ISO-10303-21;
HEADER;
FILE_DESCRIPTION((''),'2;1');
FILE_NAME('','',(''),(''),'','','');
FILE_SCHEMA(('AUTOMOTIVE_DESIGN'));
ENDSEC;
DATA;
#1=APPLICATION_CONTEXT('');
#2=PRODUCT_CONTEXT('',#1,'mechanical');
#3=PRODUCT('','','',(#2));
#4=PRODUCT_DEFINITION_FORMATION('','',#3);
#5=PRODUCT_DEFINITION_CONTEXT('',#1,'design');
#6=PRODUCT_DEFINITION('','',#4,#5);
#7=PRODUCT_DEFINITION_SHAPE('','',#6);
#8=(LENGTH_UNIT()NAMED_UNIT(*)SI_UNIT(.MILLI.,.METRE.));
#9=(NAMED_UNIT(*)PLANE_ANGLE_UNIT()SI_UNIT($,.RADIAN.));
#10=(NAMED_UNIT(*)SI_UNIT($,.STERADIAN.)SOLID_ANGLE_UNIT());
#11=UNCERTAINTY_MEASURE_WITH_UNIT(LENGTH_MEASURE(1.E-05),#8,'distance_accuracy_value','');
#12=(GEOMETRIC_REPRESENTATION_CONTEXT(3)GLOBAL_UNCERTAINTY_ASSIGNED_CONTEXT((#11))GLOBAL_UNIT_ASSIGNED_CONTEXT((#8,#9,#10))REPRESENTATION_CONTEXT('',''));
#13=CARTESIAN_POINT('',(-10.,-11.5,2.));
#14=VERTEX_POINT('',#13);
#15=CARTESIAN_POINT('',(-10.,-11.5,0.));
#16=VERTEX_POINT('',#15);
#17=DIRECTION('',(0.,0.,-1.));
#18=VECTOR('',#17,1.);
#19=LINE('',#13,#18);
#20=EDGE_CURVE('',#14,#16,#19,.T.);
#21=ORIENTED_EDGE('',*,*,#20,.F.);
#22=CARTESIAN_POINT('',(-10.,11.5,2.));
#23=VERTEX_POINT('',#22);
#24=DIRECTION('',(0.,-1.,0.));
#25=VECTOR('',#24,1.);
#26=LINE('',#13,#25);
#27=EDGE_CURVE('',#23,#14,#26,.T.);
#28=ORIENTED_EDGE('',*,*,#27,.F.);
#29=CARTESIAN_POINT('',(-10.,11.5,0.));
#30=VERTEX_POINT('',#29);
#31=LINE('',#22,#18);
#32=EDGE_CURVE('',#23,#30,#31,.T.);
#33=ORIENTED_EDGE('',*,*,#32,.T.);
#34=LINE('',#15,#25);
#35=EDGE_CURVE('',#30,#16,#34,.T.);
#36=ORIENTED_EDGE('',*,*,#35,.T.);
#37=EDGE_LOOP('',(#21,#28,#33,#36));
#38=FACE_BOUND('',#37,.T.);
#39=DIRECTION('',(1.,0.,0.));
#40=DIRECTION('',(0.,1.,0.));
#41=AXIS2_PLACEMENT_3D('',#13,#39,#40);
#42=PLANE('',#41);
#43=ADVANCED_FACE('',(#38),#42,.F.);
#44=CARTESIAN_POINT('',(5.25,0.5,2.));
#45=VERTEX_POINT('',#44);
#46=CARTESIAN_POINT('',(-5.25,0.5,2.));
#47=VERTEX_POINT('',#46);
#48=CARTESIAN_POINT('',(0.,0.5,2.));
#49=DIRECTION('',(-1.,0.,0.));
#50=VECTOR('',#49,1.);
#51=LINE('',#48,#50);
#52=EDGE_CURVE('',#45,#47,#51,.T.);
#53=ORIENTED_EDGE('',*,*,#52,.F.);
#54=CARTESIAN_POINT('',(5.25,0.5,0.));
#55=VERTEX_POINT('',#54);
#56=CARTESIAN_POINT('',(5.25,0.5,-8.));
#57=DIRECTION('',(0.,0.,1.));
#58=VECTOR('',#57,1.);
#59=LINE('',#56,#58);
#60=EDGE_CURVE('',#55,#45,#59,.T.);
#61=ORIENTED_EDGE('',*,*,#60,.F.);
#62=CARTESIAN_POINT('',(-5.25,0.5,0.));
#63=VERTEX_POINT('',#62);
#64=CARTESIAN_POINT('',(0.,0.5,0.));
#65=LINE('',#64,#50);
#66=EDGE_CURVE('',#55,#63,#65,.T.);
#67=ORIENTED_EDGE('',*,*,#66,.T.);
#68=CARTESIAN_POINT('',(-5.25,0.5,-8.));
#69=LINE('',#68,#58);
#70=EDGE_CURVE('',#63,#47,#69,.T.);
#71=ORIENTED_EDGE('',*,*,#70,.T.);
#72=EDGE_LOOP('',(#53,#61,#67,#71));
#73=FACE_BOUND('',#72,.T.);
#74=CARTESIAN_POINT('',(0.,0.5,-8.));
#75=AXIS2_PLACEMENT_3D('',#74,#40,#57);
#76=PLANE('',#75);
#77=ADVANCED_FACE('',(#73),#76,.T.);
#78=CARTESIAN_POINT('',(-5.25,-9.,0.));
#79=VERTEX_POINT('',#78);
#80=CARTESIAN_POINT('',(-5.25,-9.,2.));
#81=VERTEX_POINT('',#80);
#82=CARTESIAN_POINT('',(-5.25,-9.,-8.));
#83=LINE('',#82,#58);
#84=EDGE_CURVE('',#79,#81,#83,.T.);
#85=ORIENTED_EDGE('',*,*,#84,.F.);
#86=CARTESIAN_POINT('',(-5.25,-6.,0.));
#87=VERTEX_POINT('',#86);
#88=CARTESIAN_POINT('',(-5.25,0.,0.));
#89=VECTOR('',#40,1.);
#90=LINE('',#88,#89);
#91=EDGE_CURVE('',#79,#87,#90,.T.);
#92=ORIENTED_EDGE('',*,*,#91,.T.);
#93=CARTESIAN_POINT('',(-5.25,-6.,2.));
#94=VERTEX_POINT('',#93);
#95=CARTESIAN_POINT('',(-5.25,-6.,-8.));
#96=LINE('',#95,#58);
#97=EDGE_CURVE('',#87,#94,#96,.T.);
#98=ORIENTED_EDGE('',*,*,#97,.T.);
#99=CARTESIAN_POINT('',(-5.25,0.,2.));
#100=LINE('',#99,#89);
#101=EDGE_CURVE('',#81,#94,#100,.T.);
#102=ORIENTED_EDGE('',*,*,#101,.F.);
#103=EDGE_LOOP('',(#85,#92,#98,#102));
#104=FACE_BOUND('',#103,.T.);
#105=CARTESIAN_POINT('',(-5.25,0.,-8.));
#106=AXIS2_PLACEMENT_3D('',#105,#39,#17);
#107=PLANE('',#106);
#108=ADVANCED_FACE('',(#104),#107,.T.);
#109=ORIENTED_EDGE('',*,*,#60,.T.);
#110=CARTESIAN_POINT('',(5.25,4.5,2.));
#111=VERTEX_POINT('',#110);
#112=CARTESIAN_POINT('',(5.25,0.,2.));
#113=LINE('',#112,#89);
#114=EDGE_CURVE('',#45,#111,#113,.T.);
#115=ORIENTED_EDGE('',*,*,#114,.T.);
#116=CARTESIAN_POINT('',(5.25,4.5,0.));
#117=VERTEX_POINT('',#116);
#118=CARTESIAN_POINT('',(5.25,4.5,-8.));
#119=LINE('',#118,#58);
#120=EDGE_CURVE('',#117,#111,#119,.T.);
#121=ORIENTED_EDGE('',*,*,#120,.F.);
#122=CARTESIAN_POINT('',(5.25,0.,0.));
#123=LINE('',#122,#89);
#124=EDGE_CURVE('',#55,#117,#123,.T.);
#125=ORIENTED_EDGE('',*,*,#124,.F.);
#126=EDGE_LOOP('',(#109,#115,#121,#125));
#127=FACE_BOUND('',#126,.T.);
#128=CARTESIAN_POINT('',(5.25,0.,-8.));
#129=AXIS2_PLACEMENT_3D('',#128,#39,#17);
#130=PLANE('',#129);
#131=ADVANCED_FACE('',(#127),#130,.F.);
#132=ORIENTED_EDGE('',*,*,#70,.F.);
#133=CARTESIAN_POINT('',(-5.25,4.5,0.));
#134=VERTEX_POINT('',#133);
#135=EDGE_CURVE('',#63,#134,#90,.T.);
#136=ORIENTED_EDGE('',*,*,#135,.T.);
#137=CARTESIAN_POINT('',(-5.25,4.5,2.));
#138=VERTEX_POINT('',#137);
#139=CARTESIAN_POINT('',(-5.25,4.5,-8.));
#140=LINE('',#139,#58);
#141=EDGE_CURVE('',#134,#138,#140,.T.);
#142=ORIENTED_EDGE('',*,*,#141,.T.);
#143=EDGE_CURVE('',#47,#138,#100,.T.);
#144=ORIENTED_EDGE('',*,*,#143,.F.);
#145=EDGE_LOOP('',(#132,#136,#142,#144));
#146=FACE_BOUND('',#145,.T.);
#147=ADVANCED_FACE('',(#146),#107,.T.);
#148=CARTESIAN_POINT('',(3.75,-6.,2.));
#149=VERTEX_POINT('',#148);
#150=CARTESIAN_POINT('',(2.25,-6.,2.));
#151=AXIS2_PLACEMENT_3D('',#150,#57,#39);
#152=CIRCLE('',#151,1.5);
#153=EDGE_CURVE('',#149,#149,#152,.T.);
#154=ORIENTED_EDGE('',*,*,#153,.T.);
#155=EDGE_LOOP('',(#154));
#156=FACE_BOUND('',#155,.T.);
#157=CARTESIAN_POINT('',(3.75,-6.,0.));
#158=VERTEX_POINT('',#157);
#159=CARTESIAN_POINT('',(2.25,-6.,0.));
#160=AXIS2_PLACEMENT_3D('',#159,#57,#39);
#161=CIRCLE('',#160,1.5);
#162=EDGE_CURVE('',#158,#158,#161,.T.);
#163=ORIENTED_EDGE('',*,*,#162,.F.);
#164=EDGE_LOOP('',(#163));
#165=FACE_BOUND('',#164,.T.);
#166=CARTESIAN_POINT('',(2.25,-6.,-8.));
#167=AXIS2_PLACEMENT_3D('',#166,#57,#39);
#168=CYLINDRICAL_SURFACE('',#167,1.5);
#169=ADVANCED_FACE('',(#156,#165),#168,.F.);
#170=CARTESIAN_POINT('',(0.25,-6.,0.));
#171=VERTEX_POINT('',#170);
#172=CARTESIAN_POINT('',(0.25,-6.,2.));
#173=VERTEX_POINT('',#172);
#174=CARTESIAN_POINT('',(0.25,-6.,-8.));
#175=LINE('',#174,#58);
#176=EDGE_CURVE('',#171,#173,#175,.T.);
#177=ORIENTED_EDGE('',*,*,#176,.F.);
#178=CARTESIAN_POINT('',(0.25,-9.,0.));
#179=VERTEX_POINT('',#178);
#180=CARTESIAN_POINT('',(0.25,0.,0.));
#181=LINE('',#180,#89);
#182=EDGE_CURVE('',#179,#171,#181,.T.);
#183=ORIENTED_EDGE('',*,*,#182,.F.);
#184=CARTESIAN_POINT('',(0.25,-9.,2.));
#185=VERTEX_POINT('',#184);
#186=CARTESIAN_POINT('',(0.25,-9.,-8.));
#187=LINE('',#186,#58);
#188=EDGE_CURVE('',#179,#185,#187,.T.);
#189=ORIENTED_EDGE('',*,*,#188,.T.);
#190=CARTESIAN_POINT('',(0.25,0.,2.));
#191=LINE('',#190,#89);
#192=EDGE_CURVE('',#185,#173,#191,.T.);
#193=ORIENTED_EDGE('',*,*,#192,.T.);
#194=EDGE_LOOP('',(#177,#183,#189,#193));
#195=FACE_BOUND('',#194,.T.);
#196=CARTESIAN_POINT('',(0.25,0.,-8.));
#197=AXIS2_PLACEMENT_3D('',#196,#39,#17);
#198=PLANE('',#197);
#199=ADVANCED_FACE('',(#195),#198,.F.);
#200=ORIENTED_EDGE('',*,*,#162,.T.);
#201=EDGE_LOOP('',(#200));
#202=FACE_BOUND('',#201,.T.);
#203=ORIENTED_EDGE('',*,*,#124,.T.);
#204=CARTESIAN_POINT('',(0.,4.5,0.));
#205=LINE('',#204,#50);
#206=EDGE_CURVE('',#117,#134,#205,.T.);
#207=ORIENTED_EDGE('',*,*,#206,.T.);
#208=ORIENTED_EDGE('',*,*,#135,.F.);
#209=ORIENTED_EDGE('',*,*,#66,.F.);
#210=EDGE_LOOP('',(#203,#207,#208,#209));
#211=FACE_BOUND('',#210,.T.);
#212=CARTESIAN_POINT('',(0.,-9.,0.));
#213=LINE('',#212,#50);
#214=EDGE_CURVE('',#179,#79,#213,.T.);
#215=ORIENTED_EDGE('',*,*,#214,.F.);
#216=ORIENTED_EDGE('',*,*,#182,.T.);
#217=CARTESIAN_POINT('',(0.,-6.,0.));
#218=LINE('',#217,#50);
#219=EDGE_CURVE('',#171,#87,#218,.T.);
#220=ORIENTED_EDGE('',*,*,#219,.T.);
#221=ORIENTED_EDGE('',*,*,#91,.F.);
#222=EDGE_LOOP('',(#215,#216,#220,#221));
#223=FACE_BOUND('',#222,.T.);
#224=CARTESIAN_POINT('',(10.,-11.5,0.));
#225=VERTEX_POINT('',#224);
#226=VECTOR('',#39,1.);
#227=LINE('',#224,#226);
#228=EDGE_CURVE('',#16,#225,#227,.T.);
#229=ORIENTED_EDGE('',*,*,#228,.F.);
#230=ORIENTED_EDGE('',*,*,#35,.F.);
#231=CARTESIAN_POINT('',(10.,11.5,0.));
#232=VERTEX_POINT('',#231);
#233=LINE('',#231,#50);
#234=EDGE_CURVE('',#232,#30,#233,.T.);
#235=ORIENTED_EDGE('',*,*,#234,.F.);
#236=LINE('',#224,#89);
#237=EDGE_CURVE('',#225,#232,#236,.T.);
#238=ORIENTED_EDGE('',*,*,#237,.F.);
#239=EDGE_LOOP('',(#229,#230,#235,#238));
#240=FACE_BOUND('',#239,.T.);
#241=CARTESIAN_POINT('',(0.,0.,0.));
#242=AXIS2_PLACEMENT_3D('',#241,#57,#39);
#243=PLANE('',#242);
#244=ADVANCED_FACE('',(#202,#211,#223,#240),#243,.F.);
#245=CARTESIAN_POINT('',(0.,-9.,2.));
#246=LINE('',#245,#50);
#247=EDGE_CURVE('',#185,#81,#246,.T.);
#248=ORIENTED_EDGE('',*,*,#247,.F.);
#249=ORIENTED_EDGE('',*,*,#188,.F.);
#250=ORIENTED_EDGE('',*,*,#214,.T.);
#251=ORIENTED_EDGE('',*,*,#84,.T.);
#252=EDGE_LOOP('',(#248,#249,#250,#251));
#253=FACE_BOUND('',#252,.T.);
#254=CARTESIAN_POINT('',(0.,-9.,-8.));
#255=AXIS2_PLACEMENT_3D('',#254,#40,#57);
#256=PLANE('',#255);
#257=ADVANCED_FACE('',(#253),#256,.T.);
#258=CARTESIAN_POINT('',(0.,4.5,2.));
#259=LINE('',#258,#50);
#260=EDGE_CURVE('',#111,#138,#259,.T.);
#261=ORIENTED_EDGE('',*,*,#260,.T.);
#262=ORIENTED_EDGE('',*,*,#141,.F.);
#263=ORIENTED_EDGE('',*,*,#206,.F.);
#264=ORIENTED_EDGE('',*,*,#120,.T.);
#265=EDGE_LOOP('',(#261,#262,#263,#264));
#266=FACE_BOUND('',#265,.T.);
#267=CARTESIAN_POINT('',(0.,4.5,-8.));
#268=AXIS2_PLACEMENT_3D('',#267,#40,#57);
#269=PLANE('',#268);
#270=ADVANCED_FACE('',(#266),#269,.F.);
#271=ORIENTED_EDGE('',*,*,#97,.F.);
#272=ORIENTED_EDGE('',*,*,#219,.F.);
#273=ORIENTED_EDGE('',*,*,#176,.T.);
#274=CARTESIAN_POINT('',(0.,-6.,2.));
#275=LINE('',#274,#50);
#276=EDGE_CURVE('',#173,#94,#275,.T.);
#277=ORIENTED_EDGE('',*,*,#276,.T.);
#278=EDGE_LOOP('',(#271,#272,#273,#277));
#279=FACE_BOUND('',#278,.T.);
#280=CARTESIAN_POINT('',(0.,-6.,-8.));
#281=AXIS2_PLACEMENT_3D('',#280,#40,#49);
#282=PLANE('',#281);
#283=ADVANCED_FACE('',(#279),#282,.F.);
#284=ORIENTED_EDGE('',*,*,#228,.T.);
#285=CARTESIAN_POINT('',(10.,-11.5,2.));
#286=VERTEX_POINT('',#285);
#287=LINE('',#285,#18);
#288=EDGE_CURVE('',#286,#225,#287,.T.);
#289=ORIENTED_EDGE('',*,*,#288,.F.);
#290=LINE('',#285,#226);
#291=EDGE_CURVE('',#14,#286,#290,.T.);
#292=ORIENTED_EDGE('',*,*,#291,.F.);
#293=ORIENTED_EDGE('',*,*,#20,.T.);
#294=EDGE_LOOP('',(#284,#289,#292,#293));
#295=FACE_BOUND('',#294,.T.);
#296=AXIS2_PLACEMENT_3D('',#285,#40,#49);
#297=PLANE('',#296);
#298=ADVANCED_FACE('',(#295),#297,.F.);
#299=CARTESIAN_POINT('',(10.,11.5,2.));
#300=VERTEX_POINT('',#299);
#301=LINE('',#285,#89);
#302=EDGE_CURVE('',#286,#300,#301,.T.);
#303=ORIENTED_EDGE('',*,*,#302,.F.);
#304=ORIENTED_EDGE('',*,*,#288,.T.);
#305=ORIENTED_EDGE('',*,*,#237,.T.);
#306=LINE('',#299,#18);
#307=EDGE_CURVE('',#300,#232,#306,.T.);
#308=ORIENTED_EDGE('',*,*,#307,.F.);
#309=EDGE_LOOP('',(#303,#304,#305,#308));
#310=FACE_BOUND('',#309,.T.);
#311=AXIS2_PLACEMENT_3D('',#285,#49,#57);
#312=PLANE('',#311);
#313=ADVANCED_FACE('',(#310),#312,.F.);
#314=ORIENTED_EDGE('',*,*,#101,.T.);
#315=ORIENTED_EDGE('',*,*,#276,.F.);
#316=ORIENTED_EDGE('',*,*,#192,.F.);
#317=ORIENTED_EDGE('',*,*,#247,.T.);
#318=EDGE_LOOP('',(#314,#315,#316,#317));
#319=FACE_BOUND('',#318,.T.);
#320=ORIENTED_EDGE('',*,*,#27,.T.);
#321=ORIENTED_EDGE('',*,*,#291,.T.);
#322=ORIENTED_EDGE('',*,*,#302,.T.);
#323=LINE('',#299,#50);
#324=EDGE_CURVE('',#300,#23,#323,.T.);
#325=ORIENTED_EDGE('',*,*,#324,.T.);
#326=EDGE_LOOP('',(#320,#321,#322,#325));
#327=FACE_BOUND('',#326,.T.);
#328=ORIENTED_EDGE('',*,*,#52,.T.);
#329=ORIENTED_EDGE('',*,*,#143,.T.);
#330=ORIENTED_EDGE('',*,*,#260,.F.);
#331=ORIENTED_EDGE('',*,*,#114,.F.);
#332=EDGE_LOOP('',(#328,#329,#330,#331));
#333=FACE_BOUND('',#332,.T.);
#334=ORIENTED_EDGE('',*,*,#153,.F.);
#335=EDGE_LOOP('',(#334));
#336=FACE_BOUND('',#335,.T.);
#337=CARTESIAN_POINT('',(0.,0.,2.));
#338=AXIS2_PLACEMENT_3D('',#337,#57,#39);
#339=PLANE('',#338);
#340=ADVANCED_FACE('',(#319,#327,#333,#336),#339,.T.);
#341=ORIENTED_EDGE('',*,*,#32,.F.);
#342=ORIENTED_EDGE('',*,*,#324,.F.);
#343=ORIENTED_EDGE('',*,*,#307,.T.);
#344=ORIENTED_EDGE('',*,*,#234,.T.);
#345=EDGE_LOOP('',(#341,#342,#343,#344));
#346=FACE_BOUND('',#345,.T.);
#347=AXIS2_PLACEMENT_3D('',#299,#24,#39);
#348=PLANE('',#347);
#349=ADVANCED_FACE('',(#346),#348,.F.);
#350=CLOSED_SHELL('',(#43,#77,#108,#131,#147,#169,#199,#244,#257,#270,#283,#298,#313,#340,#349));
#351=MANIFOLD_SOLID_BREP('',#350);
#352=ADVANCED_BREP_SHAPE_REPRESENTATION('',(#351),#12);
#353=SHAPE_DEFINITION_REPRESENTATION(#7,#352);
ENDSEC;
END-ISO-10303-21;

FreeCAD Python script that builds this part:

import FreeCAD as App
import Part
import Sketcher

V = App.Vector
Q = App.Units.Quantity


def add_polygon(sketch, points):
    """Adds a closed chain of lines whose ends are joined by coincident constraints."""
    first, n = sketch.GeometryCount, len(points)
    for a, b in zip(points, points[1:] + points[:1]):
        sketch.addGeometry(Part.LineSegment(App.Vector(*a, 0), App.Vector(*b, 0)), False)
    for i in range(n):
        sketch.addConstraint(Sketcher.Constraint("Coincident", first + i, 2, first + (i + 1) % n, 1))

doc = App.newDocument("Part")
body = doc.addObject("PartDesign::Body", "Body")

# Sketch on XY plane
sketch1 = doc.addObject("Sketcher::SketchObject", "Sketch")
body.addObject(sketch1)
sketch1.AttachmentSupport = (doc.XY_Plane, [""])
sketch1.MapMode = "FlatFace"
add_polygon(sketch1, [(-10, 12), (-10, -12), (10, -12), (10, 12)])  # lines 0-3
sketch1.addConstraint(Sketcher.Constraint("Vertical", 0))
sketch1.addConstraint(Sketcher.Constraint("Horizontal", 1))
sketch1.addConstraint(Sketcher.Constraint("Vertical", 2))
sketch1.addConstraint(Sketcher.Constraint("Horizontal", 3))
sketch1.addConstraint(Sketcher.Constraint("Symmetric", 0, 2, 2, 2, -1, 1))
sketch1.addConstraint(Sketcher.Constraint("DistanceX", 1, 1, 1, 2, Q("20 mm")))
sketch1.addConstraint(Sketcher.Constraint("DistanceY", 0, 2, 0, 1, Q("23 mm")))
pad1 = doc.addObject("PartDesign::Pad", "Pad")
body.addObject(pad1)
pad1.Profile = sketch1
pad1.Length = 2

# Sketch on XY plane
sketch2 = doc.addObject("Sketcher::SketchObject", "Sketch001")
body.addObject(sketch2)
sketch2.AttachmentSupport = (doc.XY_Plane, [""])
sketch2.MapMode = "FlatFace"
sketch2.AttachmentOffset = App.Placement(V(0, 0, 2), App.Rotation())
add_polygon(sketch2, [(-5.2, 4.5), (-5.2, 0.5), (5.2, 0.5), (5.2, 4.5)])  # lines 0-3
add_polygon(sketch2, [(-5.2, -6), (-5.2, -9), (0.2, -9), (0.2, -6)])  # lines 4-7
sketch2.addGeometry(Part.Circle(V(2.2, -6, 0), V(0, 0, 1), 1.5), False)  # 8
sketch2.addConstraint(Sketcher.Constraint("Vertical", 0))
sketch2.addConstraint(Sketcher.Constraint("Horizontal", 1))
sketch2.addConstraint(Sketcher.Constraint("Vertical", 2))
sketch2.addConstraint(Sketcher.Constraint("Horizontal", 3))
sketch2.addConstraint(Sketcher.Constraint("Vertical", 4))
sketch2.addConstraint(Sketcher.Constraint("Horizontal", 5))
sketch2.addConstraint(Sketcher.Constraint("Vertical", 6))
sketch2.addConstraint(Sketcher.Constraint("Horizontal", 7))
sketch2.addConstraint(Sketcher.Constraint("Horizontal", 8, 3, 6, 2))
sketch2.addConstraint(Sketcher.Constraint("Vertical", 3, 2, 4, 2))
sketch2.addConstraint(Sketcher.Constraint("Diameter", 8, Q("3 mm")))
sketch2.addConstraint(Sketcher.Constraint("DistanceY", 0, 2, 0, 1, Q("4 mm")))
sketch2.addConstraint(Sketcher.Constraint("DistanceY", 4, 2, 4, 1, Q("3 mm")))
sketch2.addConstraint(Sketcher.Constraint("DistanceX", 1, 1, 1, 2, Q("10.5 mm")))
sketch2.addConstraint(Sketcher.Constraint("DistanceX", 5, 1, 5, 2, Q("5.5 mm")))
sketch2.addConstraint(Sketcher.Constraint("DistanceY", 8, 3, -1, 1, Q("6 mm")))
sketch2.addConstraint(Sketcher.Constraint("DistanceX", 8, 3, 1, 2, Q("3 mm")))
sketch2.addConstraint(Sketcher.Constraint("DistanceY", -1, 1, 0, 2, Q("0.5 mm")))
sketch2.addConstraint(Sketcher.Constraint("DistanceX", -1, 1, 8, 3, Q("2.25 mm")))
pocket1 = doc.addObject("PartDesign::Pocket", "Pocket")
body.addObject(pocket1)
pocket1.Profile = sketch2
pocket1.Length = 10

doc.recompute()
